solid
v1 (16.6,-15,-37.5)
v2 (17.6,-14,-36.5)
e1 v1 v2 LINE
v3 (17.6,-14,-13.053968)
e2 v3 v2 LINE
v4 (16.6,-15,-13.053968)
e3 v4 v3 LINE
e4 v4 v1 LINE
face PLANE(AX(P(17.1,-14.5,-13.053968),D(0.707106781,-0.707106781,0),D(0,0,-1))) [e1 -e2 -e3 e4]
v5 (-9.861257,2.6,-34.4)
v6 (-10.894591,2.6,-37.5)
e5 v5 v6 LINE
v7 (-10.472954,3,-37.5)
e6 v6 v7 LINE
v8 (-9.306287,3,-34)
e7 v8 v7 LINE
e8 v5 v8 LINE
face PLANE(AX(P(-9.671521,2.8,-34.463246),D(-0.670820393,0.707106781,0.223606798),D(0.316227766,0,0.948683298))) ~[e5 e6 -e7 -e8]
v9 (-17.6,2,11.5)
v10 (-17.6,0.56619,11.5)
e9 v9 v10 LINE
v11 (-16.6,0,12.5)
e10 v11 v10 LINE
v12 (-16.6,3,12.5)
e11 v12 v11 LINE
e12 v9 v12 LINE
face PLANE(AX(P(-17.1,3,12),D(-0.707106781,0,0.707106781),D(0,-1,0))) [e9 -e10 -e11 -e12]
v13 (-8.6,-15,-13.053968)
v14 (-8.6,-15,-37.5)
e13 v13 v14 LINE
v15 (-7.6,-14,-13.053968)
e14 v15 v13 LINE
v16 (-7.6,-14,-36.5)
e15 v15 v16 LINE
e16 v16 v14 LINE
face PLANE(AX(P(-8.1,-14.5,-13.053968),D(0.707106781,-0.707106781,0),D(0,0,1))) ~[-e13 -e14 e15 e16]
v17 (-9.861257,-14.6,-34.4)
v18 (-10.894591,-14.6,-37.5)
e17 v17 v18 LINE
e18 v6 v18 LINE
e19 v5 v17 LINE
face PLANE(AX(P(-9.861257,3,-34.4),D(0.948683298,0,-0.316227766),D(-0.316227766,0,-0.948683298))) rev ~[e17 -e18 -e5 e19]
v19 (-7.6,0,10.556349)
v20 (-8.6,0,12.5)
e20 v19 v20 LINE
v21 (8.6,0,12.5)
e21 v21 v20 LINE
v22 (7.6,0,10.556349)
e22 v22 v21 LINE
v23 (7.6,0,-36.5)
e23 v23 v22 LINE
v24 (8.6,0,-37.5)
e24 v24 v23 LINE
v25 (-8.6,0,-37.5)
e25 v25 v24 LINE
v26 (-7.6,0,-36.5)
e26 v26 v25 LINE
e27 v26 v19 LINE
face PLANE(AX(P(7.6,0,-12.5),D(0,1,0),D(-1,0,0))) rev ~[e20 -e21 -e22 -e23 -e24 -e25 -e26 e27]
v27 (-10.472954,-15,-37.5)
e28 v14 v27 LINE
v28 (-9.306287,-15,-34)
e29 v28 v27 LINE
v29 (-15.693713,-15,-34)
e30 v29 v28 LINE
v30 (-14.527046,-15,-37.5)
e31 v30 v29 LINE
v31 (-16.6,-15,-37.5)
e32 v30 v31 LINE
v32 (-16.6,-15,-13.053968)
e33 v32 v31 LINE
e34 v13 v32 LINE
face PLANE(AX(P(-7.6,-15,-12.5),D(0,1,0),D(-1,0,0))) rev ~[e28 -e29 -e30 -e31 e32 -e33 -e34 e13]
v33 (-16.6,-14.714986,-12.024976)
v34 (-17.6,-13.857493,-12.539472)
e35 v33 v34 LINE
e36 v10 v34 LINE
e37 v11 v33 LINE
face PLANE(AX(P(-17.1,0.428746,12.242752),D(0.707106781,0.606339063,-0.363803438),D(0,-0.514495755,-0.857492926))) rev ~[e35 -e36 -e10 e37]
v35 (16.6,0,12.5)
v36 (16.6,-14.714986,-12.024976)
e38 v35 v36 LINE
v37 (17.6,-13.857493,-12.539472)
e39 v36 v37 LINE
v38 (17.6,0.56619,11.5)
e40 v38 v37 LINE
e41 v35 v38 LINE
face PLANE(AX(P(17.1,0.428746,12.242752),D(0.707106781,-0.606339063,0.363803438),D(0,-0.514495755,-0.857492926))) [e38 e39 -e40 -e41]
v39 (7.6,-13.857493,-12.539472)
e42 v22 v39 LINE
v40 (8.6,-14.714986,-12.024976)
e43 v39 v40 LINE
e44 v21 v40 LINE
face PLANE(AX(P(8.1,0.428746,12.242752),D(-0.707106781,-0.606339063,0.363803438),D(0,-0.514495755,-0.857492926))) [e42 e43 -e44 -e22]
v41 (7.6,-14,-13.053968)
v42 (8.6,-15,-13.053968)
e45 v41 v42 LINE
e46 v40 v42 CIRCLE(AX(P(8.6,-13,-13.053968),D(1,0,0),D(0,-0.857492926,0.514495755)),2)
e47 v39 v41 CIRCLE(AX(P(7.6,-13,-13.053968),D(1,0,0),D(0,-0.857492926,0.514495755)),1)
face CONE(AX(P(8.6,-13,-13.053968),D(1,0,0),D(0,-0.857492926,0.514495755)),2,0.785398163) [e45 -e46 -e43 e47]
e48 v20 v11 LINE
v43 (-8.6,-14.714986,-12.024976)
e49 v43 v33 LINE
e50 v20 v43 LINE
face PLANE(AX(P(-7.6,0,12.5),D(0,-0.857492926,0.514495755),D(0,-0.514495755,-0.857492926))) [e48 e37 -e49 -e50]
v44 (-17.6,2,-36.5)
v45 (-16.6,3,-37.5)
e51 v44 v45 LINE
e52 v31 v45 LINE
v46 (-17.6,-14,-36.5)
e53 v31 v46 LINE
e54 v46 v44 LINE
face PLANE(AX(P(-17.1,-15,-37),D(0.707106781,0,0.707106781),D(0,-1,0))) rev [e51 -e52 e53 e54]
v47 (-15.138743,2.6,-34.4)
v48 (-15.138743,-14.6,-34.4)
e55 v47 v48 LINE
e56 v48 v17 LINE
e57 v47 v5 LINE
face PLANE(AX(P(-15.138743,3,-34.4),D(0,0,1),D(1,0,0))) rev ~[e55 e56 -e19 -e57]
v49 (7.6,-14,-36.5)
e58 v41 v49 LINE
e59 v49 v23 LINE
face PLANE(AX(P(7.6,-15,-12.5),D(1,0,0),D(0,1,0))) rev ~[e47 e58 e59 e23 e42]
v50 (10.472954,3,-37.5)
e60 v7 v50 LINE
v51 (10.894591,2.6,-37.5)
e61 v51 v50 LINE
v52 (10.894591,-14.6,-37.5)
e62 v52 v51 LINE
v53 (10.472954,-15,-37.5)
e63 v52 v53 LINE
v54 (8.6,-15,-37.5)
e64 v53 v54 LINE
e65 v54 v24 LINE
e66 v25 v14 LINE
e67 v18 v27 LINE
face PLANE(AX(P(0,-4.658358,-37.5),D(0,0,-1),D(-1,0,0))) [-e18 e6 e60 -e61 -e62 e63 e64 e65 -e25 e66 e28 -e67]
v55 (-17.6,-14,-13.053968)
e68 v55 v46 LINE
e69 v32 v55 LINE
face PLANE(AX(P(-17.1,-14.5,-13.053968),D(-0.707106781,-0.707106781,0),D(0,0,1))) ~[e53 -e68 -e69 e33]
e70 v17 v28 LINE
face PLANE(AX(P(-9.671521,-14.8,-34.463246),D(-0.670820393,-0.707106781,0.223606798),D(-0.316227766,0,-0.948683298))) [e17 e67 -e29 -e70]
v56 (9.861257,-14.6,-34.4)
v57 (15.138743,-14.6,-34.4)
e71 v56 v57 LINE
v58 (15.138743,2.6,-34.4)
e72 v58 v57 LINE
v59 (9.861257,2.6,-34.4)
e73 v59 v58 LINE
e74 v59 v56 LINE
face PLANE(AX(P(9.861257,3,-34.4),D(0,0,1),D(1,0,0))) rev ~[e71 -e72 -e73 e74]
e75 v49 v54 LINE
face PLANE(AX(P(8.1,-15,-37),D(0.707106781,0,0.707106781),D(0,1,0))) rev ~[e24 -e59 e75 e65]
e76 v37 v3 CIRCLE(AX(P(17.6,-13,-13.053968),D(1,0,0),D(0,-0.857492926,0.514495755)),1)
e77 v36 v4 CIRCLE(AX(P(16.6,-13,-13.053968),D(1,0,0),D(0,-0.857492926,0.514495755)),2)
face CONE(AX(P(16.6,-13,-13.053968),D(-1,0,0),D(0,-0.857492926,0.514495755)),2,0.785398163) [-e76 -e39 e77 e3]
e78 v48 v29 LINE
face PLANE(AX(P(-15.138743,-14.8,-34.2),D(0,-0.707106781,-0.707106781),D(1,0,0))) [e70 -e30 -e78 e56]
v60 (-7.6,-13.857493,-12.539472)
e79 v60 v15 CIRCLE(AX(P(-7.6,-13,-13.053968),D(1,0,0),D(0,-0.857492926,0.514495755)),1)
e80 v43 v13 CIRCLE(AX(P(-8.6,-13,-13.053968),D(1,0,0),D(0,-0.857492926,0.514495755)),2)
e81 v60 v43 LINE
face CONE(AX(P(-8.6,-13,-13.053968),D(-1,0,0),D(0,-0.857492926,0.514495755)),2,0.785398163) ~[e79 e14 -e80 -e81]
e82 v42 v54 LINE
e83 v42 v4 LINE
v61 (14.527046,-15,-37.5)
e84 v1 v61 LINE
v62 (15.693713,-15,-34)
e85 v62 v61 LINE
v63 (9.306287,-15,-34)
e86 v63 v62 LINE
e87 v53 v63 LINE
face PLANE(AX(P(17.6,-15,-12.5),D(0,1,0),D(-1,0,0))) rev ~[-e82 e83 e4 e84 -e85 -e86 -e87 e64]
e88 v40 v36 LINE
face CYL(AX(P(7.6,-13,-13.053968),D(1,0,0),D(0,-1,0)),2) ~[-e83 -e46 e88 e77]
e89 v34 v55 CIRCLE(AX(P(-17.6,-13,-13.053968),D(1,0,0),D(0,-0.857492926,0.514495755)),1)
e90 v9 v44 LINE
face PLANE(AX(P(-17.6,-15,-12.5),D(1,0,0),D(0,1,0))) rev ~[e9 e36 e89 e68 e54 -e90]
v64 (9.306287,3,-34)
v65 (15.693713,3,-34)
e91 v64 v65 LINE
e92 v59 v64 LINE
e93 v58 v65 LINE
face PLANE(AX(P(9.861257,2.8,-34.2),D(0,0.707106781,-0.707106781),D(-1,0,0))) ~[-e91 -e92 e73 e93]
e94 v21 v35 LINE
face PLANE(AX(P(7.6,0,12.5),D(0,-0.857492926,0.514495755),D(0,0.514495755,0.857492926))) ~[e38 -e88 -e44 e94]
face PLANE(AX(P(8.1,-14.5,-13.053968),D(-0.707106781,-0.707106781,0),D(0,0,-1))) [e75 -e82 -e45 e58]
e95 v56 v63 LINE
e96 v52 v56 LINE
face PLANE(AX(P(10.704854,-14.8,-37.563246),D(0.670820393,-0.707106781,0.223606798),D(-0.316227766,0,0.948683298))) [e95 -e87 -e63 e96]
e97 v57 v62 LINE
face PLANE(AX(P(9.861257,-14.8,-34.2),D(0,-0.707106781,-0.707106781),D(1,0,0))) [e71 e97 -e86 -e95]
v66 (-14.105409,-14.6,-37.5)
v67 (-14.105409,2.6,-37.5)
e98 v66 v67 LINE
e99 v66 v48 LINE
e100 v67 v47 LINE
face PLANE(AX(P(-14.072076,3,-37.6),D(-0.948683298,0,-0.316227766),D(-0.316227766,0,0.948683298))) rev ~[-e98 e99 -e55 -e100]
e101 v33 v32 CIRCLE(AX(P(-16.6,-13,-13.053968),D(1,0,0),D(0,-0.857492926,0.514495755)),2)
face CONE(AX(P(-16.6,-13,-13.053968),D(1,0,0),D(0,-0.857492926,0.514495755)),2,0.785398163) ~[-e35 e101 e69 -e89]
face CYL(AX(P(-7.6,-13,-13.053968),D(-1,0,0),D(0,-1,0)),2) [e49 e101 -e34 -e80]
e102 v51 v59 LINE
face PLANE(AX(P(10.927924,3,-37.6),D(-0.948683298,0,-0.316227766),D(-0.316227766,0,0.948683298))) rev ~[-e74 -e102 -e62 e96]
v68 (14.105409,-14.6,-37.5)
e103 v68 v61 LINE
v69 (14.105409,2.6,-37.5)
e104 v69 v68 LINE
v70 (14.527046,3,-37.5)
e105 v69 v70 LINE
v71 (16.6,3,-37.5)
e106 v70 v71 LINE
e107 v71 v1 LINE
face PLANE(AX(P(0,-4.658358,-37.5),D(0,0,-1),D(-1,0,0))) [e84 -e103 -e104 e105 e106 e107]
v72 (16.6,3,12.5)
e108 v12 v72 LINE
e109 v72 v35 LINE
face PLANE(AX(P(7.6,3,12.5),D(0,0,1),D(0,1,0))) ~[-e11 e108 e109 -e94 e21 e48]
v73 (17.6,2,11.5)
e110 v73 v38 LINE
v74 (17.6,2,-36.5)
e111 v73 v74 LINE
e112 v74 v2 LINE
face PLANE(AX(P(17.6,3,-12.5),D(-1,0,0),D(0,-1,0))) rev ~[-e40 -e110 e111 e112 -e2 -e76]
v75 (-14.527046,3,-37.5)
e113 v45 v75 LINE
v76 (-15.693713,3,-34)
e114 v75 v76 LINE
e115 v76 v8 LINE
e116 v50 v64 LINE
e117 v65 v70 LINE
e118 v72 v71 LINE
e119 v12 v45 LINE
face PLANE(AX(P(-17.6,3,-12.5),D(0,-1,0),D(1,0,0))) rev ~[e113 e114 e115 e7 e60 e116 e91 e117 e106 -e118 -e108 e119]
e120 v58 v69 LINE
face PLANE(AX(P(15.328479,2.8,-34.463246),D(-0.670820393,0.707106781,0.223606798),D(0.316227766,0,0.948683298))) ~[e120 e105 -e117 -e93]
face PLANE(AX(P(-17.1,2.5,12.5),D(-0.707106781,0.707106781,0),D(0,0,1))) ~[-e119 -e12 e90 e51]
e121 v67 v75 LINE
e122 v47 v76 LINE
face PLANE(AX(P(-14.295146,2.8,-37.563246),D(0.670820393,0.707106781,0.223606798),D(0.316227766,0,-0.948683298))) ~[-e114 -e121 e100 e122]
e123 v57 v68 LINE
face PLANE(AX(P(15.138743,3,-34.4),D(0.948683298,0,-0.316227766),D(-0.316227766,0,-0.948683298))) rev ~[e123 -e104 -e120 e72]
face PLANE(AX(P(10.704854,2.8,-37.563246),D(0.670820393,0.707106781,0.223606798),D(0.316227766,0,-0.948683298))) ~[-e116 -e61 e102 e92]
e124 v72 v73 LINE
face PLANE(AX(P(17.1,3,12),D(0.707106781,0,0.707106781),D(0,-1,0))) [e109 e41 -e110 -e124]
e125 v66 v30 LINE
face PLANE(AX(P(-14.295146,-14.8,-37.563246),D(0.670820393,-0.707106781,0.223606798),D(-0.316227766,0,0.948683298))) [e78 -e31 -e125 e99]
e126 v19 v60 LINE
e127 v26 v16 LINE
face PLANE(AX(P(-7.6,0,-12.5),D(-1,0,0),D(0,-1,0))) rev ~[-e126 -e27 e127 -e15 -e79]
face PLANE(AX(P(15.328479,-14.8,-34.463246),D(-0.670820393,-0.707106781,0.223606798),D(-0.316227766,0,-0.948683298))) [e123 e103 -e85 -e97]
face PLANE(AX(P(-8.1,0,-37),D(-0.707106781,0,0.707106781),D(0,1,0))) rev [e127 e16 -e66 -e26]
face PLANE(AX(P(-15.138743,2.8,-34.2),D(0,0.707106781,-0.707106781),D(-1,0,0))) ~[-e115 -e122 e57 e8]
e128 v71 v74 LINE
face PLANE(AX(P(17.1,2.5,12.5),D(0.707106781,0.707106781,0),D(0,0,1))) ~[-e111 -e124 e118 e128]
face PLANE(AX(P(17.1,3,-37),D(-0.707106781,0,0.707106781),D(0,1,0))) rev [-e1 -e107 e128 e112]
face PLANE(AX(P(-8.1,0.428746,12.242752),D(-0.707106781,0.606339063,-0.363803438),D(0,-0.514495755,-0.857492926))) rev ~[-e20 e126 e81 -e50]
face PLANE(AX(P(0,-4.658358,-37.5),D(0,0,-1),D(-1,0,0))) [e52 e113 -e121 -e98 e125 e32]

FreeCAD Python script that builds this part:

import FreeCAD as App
import Part
import Sketcher

V = App.Vector
Q = App.Units.Quantity


def edges_at(feature, points):
    """Names of the edges that pass closest to the given points."""
    edges = feature.Shape.Edges
    near = lambda p: min(range(len(edges)), key=lambda i: edges[i].distToShape(Part.Vertex(*p))[0])
    return sorted({f"Edge{near(p) + 1}" for p in points})

doc = App.newDocument("Part")
body = doc.addObject("PartDesign::Body", "Body")

# Sketch on XZ plane
sketch1 = doc.addObject("Sketcher::SketchObject", "Sketch")
body.addObject(sketch1)
sketch1.AttachmentSupport = (doc.XZ_Plane, [""])
sketch1.MapMode = "FlatFace"
sketch1.addGeometry([
    Part.LineSegment(V(-8, -12, 0), V(-8, 12, 0)),
    Part.LineSegment(V(-8, 12, 0), V(8, 12, 0)),
    Part.LineSegment(V(8, 12, 0), V(8, -12, 0)),
    Part.LineSegment(V(8, -12, 0), V(-8, -12, 0)),
], False)
sketch1.addConstraint([
    Sketcher.Constraint("Coincident", 0, 2, 1, 1),
    Sketcher.Constraint("Coincident", 1, 2, 2, 1),
    Sketcher.Constraint("Coincident", 2, 2, 3, 1),
    Sketcher.Constraint("Coincident", 3, 2, 0, 1),
    Sketcher.Constraint("Vertical", 0),
    Sketcher.Constraint("Horizontal", 1),
    Sketcher.Constraint("Vertical", 2),
    Sketcher.Constraint("Horizontal", 3),
    Sketcher.Constraint("Symmetric", 0, 2, 2, 2, -1, 1),
    Sketcher.Constraint("DistanceY", 0, 1, 0, 2, Q("25 mm")),
    Sketcher.Constraint("DistanceX", 1, 1, 1, 2, Q("15.2 mm")),
])
pad1 = doc.addObject("PartDesign::Pad", "Pad")
body.addObject(pad1)
pad1.Profile = sketch1
pad1.Length = 3
pad1.Reversed = True

# Sketch on YZ plane
sketch2 = doc.addObject("Sketcher::SketchObject", "Sketch001")
body.addObject(sketch2)
sketch2.AttachmentSupport = (doc.YZ_Plane, [""])
sketch2.MapMode = "FlatFace"
sketch2.AttachmentOffset = App.Placement(V(0, 0, -7.6), App.Rotation())
sketch2.addGeometry([
    Part.LineSegment(V(3, -12.5, 0), V(-15, -12.5, 0)),
    Part.LineSegment(V(-15, -12.5, 0), V(0, 12.5, 0)),
    Part.LineSegment(V(0, 12.5, 0), V(3, 12.5, 0)),
    Part.LineSegment(V(3, 12.5, 0), V(3, -12.5, 0)),
], False)
sketch2.addConstraint([
    Sketcher.Constraint("Coincident", 0, 2, 1, 1),
    Sketcher.Constraint("Coincident", 1, 2, 2, 1),
    Sketcher.Constraint("Coincident", 2, 2, 3, 1),
    Sketcher.Constraint("Coincident", 3, 2, 0, 1),
    Sketcher.Constraint("Horizontal", 0),
    Sketcher.Constraint("Horizontal", 2),
    Sketcher.Constraint("Vertical", 3),
    Sketcher.Constraint("PointOnObject", 1, 2, -2),
    Sketcher.Constraint("DistanceX", 0, 2, 0, 1, Q("18 mm")),
    Sketcher.Constraint("DistanceX", 2, 1, 2, 2, Q("3 mm")),
    Sketcher.Constraint("DistanceY", 3, 2, 3, 1, Q("25 mm")),
    Sketcher.Constraint("DistanceY", 0, 2, -1, 1, Q("12.5 mm")),
])
pad2 = doc.addObject("PartDesign::Pad", "Pad001")
body.addObject(pad2)
pad2.Profile = sketch2
pad2.Length = 10
pad2.Reversed = True
doc.recompute()

mirrored = doc.addObject("PartDesign::Mirrored", "Mirrored")
body.addObject(mirrored)
mirrored.Originals = [pad2]
mirrored.MirrorPlane = (doc.YZ_Plane, [""])
body.Tip = mirrored

# Sketch on XY plane
sketch3 = doc.addObject("Sketcher::SketchObject", "Sketch002")
body.addObject(sketch3)
sketch3.AttachmentSupport = (doc.XY_Plane, [""])
sketch3.MapMode = "FlatFace"
sketch3.AttachmentOffset = App.Placement(V(0, 0, -12.5), App.Rotation())
sketch3.addGeometry([
    Part.LineSegment(V(-8, 0, 0), V(-8, -15, 0)),  # 0
    Part.LineSegment(V(-8, -15, 0), V(-18, -15, 0)),  # 1
    Part.LineSegment(V(-18, -15, 0), V(-18, 3, 0)),  # 2
    Part.LineSegment(V(-18, 3, 0), V(18, 3, 0)),  # 3
    Part.LineSegment(V(18, 3, 0), V(18, -15, 0)),  # 4
    Part.LineSegment(V(18, -15, 0), V(8, -15, 0)),  # 5
    Part.LineSegment(V(8, -15, 0), V(8, 0, 0)),  # 6
    Part.LineSegment(V(8, 0, 0), V(-8, 0, 0)),  # 7
], False)
sketch3.addConstraint([
    Sketcher.Constraint("Coincident", 0, 2, 1, 1),
    Sketcher.Constraint("Coincident", 1, 2, 2, 1),
    Sketcher.Constraint("Coincident", 2, 2, 3, 1),
    Sketcher.Constraint("Coincident", 3, 2, 4, 1),
    Sketcher.Constraint("Coincident", 4, 2, 5, 1),
    Sketcher.Constraint("Coincident", 5, 2, 6, 1),
    Sketcher.Constraint("Coincident", 6, 2, 7, 1),
    Sketcher.Constraint("Coincident", 7, 2, 0, 1),
    Sketcher.Constraint("Vertical", 0),
    Sketcher.Constraint("Horizontal", 1),
    Sketcher.Constraint("Vertical", 2),
    Sketcher.Constraint("Horizontal", 3),
    Sketcher.Constraint("Vertical", 4),
    Sketcher.Constraint("Horizontal", 5),
    Sketcher.Constraint("Vertical", 6),
    Sketcher.Constraint("Horizontal", 7),
    Sketcher.Constraint("Symmetric", 6, 2, 7, 2, -1, 1),
    Sketcher.Constraint("Symmetric", 1, 2, 4, 2, -2),
    Sketcher.Constraint("DistanceX", 1, 2, 1, 1, Q("10 mm")),
    Sketcher.Constraint("DistanceY", 0, 2, 0, 1, Q("15 mm")),
    Sketcher.Constraint("DistanceY", 2, 1, 2, 2, Q("18 mm")),
    Sketcher.Constraint("DistanceX", 3, 1, 3, 2, Q("35.2 mm")),
])
pad3 = doc.addObject("PartDesign::Pad", "Pad002")
body.addObject(pad3)
pad3.Profile = sketch3
pad3.Length = 25
pad3.Reversed = True

# Sketch on XZ plane
sketch4 = doc.addObject("Sketcher::SketchObject", "Sketch003")
body.addObject(sketch4)
sketch4.AttachmentSupport = (doc.XZ_Plane, [""])
sketch4.MapMode = "FlatFace"
sketch4.AttachmentOffset = App.Placement(V(0, 0, -3), App.Rotation())
sketch4.addGeometry([
    Part.LineSegment(V(14.1, -37.6, 0), V(10.9, -37.6, 0)),  # 0
    Part.LineSegment(V(10.9, -37.6, 0), V(9.9, -34.4, 0)),  # 1
    Part.LineSegment(V(9.9, -34.4, 0), V(15.1, -34.4, 0)),  # 2
    Part.LineSegment(V(15.1, -34.4, 0), V(14.1, -37.6, 0)),  # 3
    Part.LineSegment(V(-14.1, -37.6, 0), V(-15.1, -34.4, 0)),  # 4
    Part.LineSegment(V(-15.1, -34.4, 0), V(-9.9, -34.4, 0)),  # 5
    Part.LineSegment(V(-9.9, -34.4, 0), V(-10.9, -37.6, 0)),  # 6
    Part.LineSegment(V(-10.9, -37.6, 0), V(-14.1, -37.6, 0)),  # 7
], False)
sketch4.addConstraint([
    Sketcher.Constraint("Coincident", 0, 2, 1, 1),
    Sketcher.Constraint("Coincident", 1, 2, 2, 1),
    Sketcher.Constraint("Coincident", 2, 2, 3, 1),
    Sketcher.Constraint("Coincident", 3, 2, 0, 1),
    Sketcher.Constraint("Coincident", 4, 2, 5, 1),
    Sketcher.Constraint("Coincident", 5, 2, 6, 1),
    Sketcher.Constraint("Coincident", 6, 2, 7, 1),
    Sketcher.Constraint("Coincident", 7, 2, 4, 1),
    Sketcher.Constraint("Horizontal", 0),
    Sketcher.Constraint("Horizontal", 2),
    Sketcher.Constraint("Horizontal", 5),
    Sketcher.Constraint("Horizontal", 7),
    Sketcher.Constraint("Symmetric", 2, 2, 4, 2, -2),
    Sketcher.Constraint("Symmetric", 0, 2, 6, 2, -2),
    Sketcher.Constraint("Parallel", 1, 4),
    Sketcher.Constraint("Parallel", 3, 6),
    Sketcher.Constraint("Equal", 2, 5),
    Sketcher.Constraint("DistanceX", 4, 2, 1, 2, Q("25 mm")),
    Sketcher.Constraint("DistanceY", 0, 2, -1, 1, Q("37.6 mm")),
    Sketcher.Constraint("DistanceY", 1, 2, -1, 1, Q("34.4 mm")),
    Sketcher.Constraint("DistanceX", 0, 2, 0, 1, Q("3.144152 mm")),
    Sketcher.Constraint("DistanceX", 2, 1, 2, 2, Q("5.277485 mm")),
])
pocket1 = doc.addObject("PartDesign::Pocket", "Pocket")
body.addObject(pocket1)
pocket1.Profile = sketch4
pocket1.Length = 18
pocket1.Reversed = True
doc.recompute()

fillet = doc.addObject("PartDesign::Fillet", "Fillet")
body.addObject(fillet)
fillet.Base = (pocket1, edges_at(pocket1, [(-12.6, -15, -12.5), (12.6, -15, -12.5)]))
fillet.Radius = 2
doc.recompute()

chamfer = doc.addObject("PartDesign::Chamfer", "Chamfer")
body.addObject(chamfer)
chamfer.Base = (fillet, edges_at(fillet, [
    (-7.6, -7.357, 0.238),
    (-17.6, -7.357, 0.238),
    (-7.6, -14.927, -12.52),
    (-17.6, -14.927, -12.52),
    (7.6, -7.357, 0.238),
    (7.6, -14.927, -12.52),
    (17.6, -7.357, 0.238),
    (17.6, -14.927, -12.52),
    (-17.6, 1.5, 12.5),
    (-17.6, 3, -12.5),
    (17.6, 3, -12.5),
    (17.6, 1.5, 12.5),
    (7.6, -15, -25.277),
    (-7.6, -15, -25.277),
    (-17.6, -15, -25.277),
    (17.6, -15, -25.277),
    (7.6, -7.5, -37.5),
    (-7.6, -7.5, -37.5),
    (-17.6, -6, -37.5),
    (17.6, -6, -37.5),
]))
chamfer.Size = 1
doc.recompute()

chamfer2 = doc.addObject("PartDesign::Chamfer", "Chamfer001")
body.addObject(chamfer2)
chamfer2.Base = (chamfer, edges_at(chamfer, [
    (10.378, 3, -35.95),
    (12.5, 3, -34.4),
    (14.622, 3, -35.95),
    (14.622, -15, -35.95),
    (12.5, -15, -34.4),
    (10.378, -15, -35.95),
    (-14.622, 3, -35.95),
    (-12.5, 3, -34.4),
    (-10.378, 3, -35.95),
    (-10.378, -15, -35.95),
    (-12.5, -15, -34.4),
    (-14.622, -15, -35.95),
]))
chamfer2.Size = 0.4

doc.recompute()
